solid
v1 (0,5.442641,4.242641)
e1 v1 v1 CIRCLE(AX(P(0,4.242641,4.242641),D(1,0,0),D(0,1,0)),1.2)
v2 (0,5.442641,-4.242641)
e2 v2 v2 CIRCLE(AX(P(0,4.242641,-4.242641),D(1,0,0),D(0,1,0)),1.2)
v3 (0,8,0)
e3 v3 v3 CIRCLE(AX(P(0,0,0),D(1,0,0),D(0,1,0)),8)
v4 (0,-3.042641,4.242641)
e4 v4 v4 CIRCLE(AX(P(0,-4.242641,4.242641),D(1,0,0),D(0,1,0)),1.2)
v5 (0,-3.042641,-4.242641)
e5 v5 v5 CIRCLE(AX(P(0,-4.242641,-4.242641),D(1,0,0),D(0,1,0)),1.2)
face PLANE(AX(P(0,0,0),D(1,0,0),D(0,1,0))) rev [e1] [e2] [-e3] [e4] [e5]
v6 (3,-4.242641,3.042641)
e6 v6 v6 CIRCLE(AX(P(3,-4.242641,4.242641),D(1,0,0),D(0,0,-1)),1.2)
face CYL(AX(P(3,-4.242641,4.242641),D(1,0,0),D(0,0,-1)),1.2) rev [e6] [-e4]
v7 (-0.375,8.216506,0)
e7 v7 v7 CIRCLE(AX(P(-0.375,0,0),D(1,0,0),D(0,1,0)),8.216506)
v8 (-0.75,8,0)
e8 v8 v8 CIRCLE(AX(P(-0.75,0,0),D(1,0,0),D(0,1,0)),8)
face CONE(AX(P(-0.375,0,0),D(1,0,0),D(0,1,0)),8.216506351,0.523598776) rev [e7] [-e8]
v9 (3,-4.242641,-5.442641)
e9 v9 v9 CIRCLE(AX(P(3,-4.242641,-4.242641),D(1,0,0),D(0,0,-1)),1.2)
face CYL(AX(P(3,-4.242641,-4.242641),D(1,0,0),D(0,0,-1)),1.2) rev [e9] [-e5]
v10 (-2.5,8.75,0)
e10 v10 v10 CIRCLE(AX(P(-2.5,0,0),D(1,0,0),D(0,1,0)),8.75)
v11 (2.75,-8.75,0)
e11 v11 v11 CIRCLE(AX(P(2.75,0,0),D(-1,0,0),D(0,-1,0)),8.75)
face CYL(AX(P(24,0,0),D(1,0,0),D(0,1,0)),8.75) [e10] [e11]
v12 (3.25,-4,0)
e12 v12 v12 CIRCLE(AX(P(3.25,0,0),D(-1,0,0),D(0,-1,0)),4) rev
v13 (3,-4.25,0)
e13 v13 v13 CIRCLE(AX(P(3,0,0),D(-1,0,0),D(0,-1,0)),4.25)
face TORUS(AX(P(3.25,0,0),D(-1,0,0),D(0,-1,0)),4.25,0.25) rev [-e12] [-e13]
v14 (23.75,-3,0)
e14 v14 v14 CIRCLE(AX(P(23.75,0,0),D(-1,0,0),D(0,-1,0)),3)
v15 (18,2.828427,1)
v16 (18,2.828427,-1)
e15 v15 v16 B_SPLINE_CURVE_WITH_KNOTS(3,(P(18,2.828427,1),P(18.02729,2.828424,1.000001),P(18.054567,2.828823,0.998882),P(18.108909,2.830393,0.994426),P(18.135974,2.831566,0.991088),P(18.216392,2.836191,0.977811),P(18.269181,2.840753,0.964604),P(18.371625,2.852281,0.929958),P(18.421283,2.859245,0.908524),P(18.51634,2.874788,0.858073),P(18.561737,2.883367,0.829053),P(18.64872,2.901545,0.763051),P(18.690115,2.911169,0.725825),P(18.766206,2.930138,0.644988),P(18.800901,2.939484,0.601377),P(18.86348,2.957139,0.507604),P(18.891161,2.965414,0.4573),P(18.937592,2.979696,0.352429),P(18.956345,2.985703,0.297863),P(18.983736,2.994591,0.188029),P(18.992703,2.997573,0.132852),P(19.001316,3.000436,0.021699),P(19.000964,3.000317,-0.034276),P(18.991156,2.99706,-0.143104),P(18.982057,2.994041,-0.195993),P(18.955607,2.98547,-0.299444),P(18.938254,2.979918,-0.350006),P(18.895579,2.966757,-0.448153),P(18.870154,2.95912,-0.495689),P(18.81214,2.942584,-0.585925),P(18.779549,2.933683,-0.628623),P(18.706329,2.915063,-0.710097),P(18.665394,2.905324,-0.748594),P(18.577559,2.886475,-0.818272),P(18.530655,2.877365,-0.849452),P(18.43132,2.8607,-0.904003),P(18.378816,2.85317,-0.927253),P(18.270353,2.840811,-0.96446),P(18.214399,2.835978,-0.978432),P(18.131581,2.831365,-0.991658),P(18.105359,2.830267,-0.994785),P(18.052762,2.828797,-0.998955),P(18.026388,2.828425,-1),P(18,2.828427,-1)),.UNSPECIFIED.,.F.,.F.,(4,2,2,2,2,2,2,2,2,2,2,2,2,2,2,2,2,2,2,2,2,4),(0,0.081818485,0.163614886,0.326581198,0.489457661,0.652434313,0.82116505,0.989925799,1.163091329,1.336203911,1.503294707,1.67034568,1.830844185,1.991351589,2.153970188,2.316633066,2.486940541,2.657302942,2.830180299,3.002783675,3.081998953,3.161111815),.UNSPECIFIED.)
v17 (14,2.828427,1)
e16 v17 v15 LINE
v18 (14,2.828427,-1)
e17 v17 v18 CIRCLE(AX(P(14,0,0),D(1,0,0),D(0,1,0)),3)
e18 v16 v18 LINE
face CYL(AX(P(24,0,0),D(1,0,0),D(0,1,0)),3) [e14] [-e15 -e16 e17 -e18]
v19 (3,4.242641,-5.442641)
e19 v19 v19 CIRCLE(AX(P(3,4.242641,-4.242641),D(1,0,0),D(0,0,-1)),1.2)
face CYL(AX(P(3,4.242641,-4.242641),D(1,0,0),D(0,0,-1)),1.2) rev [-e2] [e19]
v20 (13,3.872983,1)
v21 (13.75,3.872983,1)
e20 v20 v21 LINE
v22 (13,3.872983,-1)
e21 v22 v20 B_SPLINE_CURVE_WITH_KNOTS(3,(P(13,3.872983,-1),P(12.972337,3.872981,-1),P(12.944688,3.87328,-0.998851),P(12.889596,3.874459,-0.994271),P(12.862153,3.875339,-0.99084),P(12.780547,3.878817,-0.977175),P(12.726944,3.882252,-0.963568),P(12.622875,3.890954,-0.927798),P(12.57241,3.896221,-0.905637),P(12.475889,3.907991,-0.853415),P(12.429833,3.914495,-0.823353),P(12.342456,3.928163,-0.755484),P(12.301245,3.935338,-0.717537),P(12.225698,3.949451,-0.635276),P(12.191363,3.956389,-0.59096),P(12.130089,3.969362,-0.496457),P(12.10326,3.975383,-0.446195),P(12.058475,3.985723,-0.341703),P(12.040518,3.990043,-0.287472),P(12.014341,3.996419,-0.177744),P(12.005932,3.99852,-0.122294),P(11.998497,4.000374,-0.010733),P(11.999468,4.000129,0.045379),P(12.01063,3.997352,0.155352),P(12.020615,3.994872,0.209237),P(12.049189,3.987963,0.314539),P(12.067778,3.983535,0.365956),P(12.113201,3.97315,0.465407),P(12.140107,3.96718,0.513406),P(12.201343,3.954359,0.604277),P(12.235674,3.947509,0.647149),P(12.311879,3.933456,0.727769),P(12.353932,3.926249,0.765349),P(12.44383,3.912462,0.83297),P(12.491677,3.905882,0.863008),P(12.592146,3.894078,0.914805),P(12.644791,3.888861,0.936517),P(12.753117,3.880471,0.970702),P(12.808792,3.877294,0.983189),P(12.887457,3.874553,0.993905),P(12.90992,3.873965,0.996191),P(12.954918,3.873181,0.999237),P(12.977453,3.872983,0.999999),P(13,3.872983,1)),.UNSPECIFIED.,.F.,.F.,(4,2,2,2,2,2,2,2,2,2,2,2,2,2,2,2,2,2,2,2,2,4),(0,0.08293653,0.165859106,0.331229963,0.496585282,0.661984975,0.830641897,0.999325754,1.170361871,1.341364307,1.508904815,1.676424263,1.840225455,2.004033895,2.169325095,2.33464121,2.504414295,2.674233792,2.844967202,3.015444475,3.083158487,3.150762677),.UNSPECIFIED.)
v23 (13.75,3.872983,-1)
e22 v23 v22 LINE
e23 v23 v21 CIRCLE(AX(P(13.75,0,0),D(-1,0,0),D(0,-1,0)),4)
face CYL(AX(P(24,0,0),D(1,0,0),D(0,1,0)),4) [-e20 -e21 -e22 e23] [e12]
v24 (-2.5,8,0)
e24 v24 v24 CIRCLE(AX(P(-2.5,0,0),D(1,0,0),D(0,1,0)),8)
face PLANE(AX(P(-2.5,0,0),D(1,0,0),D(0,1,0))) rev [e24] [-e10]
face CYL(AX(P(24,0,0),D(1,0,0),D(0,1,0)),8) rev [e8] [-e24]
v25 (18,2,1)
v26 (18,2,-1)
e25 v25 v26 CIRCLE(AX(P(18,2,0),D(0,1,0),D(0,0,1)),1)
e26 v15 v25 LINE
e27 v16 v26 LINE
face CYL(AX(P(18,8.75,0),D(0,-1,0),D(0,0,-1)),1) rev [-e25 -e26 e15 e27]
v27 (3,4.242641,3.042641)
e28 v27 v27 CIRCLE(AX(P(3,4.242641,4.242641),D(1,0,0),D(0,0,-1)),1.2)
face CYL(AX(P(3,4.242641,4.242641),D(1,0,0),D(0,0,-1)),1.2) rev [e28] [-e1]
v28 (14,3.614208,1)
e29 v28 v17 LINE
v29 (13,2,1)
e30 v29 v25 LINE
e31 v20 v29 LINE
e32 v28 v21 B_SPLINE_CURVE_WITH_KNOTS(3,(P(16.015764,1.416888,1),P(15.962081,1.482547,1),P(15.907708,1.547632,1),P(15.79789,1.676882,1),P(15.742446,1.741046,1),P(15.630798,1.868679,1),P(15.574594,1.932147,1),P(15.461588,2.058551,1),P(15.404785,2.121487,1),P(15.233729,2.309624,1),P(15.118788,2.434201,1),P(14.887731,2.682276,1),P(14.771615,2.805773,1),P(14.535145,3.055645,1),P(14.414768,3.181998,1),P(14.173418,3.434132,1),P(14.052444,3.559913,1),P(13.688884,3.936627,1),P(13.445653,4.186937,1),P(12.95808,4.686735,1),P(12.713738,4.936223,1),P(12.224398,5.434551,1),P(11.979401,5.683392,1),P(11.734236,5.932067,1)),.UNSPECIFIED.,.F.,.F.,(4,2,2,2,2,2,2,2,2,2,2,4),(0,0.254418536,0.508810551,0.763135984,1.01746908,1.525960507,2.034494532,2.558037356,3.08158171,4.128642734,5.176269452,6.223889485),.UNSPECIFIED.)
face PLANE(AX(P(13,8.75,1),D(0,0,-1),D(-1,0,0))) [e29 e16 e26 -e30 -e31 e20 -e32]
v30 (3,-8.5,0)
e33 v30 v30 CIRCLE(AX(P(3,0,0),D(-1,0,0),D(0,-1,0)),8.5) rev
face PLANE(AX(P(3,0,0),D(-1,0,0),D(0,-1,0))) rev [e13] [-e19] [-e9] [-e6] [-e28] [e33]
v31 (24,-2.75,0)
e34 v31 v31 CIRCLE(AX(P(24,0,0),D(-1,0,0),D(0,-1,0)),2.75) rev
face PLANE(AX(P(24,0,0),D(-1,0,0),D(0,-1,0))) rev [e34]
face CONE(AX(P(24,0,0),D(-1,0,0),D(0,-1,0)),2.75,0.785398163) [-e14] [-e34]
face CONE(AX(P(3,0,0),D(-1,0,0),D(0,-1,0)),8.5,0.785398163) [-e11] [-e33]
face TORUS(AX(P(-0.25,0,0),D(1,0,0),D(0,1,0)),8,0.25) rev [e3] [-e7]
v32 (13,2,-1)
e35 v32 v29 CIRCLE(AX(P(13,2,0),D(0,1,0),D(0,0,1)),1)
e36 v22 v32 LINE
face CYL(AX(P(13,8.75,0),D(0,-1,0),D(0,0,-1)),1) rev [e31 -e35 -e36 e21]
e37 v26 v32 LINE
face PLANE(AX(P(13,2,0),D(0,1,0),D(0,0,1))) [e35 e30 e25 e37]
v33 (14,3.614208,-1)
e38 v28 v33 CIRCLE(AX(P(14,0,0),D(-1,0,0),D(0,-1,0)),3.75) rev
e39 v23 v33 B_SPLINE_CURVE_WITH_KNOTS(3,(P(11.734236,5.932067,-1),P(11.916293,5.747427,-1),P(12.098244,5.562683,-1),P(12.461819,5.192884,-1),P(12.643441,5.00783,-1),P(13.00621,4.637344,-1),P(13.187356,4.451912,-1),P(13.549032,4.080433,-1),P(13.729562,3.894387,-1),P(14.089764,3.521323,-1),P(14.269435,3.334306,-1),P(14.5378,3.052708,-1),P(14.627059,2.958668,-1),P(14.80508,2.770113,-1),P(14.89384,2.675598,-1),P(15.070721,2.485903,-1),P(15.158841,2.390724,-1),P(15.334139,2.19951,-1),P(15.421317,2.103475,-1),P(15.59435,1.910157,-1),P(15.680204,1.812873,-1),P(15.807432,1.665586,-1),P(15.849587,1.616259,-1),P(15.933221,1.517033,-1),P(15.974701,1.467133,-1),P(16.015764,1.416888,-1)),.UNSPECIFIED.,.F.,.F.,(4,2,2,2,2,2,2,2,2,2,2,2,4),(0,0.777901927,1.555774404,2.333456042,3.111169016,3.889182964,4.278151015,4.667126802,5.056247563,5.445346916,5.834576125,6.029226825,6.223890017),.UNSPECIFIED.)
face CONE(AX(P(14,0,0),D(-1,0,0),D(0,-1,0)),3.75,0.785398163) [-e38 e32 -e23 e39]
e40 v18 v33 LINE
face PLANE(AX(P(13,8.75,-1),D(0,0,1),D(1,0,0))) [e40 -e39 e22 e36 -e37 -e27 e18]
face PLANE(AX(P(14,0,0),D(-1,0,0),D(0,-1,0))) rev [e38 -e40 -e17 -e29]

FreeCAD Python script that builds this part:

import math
import FreeCAD as App
import Part
import Sketcher
from FreeCAD import Vector
Q = App.Units.Quantity


def edges_at(feature, points):
    """Names of the edges that pass closest to the given points."""
    edges = feature.Shape.Edges
    near = lambda p: min(range(len(edges)), key=lambda i: edges[i].distToShape(Part.Vertex(*p))[0])
    return sorted({f"Edge{near(p) + 1}" for p in points})

doc = App.newDocument("Part")
body = doc.addObject("PartDesign::Body", "Body")

sketch1 = body.newObject("Sketcher::SketchObject", "Sketch")
sketch1.AttachmentSupport = (doc.getObject("XY_Plane"), [""])
sketch1.MapMode = "FlatFace"
sketch1.addGeometry(Part.LineSegment(Vector(0, 8, 0), Vector(0, 0, 0)), False)
sketch1.addGeometry(Part.LineSegment(Vector(0, 0, 0), Vector(24, 0, 0)), False)
sketch1.addGeometry(Part.LineSegment(Vector(24, 0, 0), Vector(24, 3, 0)), False)
sketch1.addGeometry(Part.LineSegment(Vector(24, 3, 0), Vector(14, 3, 0)), False)
sketch1.addGeometry(Part.LineSegment(Vector(14, 3, 0), Vector(14, 4, 0)), False)
sketch1.addGeometry(Part.LineSegment(Vector(14, 4, 0), Vector(3, 4, 0)), False)
sketch1.addGeometry(Part.LineSegment(Vector(3, 4, 0), Vector(3, 8.75, 0)), False)
sketch1.addGeometry(Part.LineSegment(Vector(3, 8.75, 0), Vector(-2.5, 8.75, 0)), False)
sketch1.addGeometry(Part.LineSegment(Vector(-2.5, 8.75, 0), Vector(-2.5, 8, 0)), False)
sketch1.addGeometry(Part.LineSegment(Vector(-2.5, 8, 0), Vector(-0.75, 8, 0)), False)
sketch1.addGeometry(Part.LineSegment(Vector(-0.75, 8, 0), Vector(-0.38, 8.22, 0)), False)
sketch1.addGeometry(Part.ArcOfCircle(Part.Circle(Vector(-0.25, 8, 0), Vector(0, 0, 1), 0.25), math.radians(0), math.radians(120)), False)
sketch1.addConstraint(Sketcher.Constraint("Coincident", 0, 2, 1, 1))
sketch1.addConstraint(Sketcher.Constraint("Coincident", 1, 2, 2, 1))
sketch1.addConstraint(Sketcher.Constraint("Coincident", 2, 2, 3, 1))
sketch1.addConstraint(Sketcher.Constraint("Coincident", 3, 2, 4, 1))
sketch1.addConstraint(Sketcher.Constraint("Coincident", 4, 2, 5, 1))
sketch1.addConstraint(Sketcher.Constraint("Coincident", 5, 2, 6, 1))
sketch1.addConstraint(Sketcher.Constraint("Coincident", 6, 2, 7, 1))
sketch1.addConstraint(Sketcher.Constraint("Coincident", 7, 2, 8, 1))
sketch1.addConstraint(Sketcher.Constraint("Coincident", 8, 2, 9, 1))
sketch1.addConstraint(Sketcher.Constraint("Coincident", 9, 2, 10, 1))
sketch1.addConstraint(Sketcher.Constraint("Tangent", 10, 2, 11, 2))
sketch1.addConstraint(Sketcher.Constraint("Tangent", 11, 1, 0, 1))
sketch1.addConstraint(Sketcher.Constraint("Vertical", 0))
sketch1.addConstraint(Sketcher.Constraint("Horizontal", 1))
sketch1.addConstraint(Sketcher.Constraint("Vertical", 2))
sketch1.addConstraint(Sketcher.Constraint("Horizontal", 3))
sketch1.addConstraint(Sketcher.Constraint("Vertical", 4))
sketch1.addConstraint(Sketcher.Constraint("Horizontal", 5))
sketch1.addConstraint(Sketcher.Constraint("Vertical", 6))
sketch1.addConstraint(Sketcher.Constraint("Horizontal", 7))
sketch1.addConstraint(Sketcher.Constraint("Vertical", 8))
sketch1.addConstraint(Sketcher.Constraint("Horizontal", 9))
sketch1.addConstraint(Sketcher.Constraint("Coincident", 0, 2, -1, 1))
sketch1.addConstraint(Sketcher.Constraint("Horizontal", 11, 3, 8, 2))
sketch1.addConstraint(Sketcher.Constraint("DistanceX", 1, 1, 1, 2, 24.0))
sketch1.addConstraint(Sketcher.Constraint("DistanceX", 3, 2, 3, 1, 10.0))
sketch1.addConstraint(Sketcher.Constraint("DistanceX", 5, 2, 5, 1, 11.0))
sketch1.addConstraint(Sketcher.Constraint("DistanceY", 0, 2, 0, 1, 8.0))
sketch1.addConstraint(Sketcher.Constraint("DistanceY", 2, 1, 2, 2, 3.0))
sketch1.addConstraint(Sketcher.Constraint("DistanceY", 4, 1, 4, 2, 1.0))
sketch1.addConstraint(Sketcher.Constraint("Angle", 10, Q("30 deg")))
sketch1.addConstraint(Sketcher.Constraint("Radius", 11, 0.25))
sketch1.addConstraint(Sketcher.Constraint("DistanceX", 7, 2, 7, 1, 5.5))
sketch1.addConstraint(Sketcher.Constraint("DistanceY", 6, 1, 6, 2, 4.75))
revolution = body.newObject("PartDesign::Revolution", "Revolution")
revolution.Profile = sketch1
revolution.ReferenceAxis = (sketch1, ["H_Axis"])
revolution.Angle = 360

sketch2 = body.newObject("Sketcher::SketchObject", "Sketch001")
sketch2.AttachmentSupport = (doc.getObject("YZ_Plane"), [""])
sketch2.MapMode = "FlatFace"
sketch2.AttachmentOffset = App.Placement(Vector(0, 0, 3), App.Rotation())
sketch2.addGeometry(Part.Circle(Vector(4.2, -4.2, 0), Vector(0, 0, 1), 1.2), False)
sketch2.addGeometry(Part.Circle(Vector(4.2, 4.2, 0), Vector(0, 0, 1), 1.2), False)
sketch2.addGeometry(Part.Circle(Vector(-4.2, -4.2, 0), Vector(0, 0, 1), 1.2), False)
sketch2.addGeometry(Part.Circle(Vector(-4.2, 4.2, 0), Vector(0, 0, 1), 1.2), False)
sketch2.addConstraint(Sketcher.Constraint("Equal", 0, 1))
sketch2.addConstraint(Sketcher.Constraint("Equal", 1, 2))
sketch2.addConstraint(Sketcher.Constraint("Equal", 2, 3))
sketch2.addConstraint(Sketcher.Constraint("Symmetric", 1, 3, 2, 3, -1, 1))
sketch2.addConstraint(Sketcher.Constraint("Symmetric", 0, 3, 3, 3, -1, 1))
sketch2.addConstraint(Sketcher.Constraint("Symmetric", 0, 3, 2, 3, -2))
sketch2.addConstraint(Sketcher.Constraint("Diameter", 0, 2.4))
sketch2.addConstraint(Sketcher.Constraint("DistanceX", -1, 1, 0, 3, 4.242641))
sketch2.addConstraint(Sketcher.Constraint("DistanceY", 0, 3, -1, 1, 4.242641))
doc.recompute()
hole = body.newObject("PartDesign::Hole", "Hole")
hole.Profile = sketch2
hole.ThreadType = "None"
hole.Diameter = 2.4
hole.DepthType = "ThroughAll"
doc.recompute()

chamfer = body.newObject("PartDesign::Chamfer", "Chamfer")
chamfer.Base = (hole, edges_at(hole, [(3, -8.75, 0), (14, -4, 0), (24, -3, 0)]))
chamfer.Size = 0.25

sketch3 = body.newObject("Sketcher::SketchObject", "Sketch002")
sketch3.AttachmentSupport = (doc.getObject("XZ_Plane"), [""])
sketch3.MapMode = "FlatFace"
sketch3.AttachmentOffset = App.Placement(Vector(0, 0, -2), App.Rotation())
sketch3.addGeometry(Part.LineSegment(Vector(18, -1, 0), Vector(13, -1, 0)), False)
sketch3.addGeometry(Part.ArcOfCircle(Part.Circle(Vector(13, 0, 0), Vector(0, 0, 1), 1), math.radians(90), math.radians(270)), False)
sketch3.addGeometry(Part.LineSegment(Vector(13, 1, 0), Vector(18, 1, 0)), False)
sketch3.addGeometry(Part.ArcOfCircle(Part.Circle(Vector(18, 0, 0), Vector(0, 0, 1), 1), math.radians(-90), math.radians(90)), False)
sketch3.addConstraint(Sketcher.Constraint("Tangent", 0, 2, 1, 2))
sketch3.addConstraint(Sketcher.Constraint("Tangent", 1, 1, 2, 1))
sketch3.addConstraint(Sketcher.Constraint("Tangent", 2, 2, 3, 2))
sketch3.addConstraint(Sketcher.Constraint("Tangent", 3, 1, 0, 1))
sketch3.addConstraint(Sketcher.Constraint("Horizontal", 0))
sketch3.addConstraint(Sketcher.Constraint("Horizontal", 2))
sketch3.addConstraint(Sketcher.Constraint("PointOnObject", 1, 3, -1))
sketch3.addConstraint(Sketcher.Constraint("Radius", 1, 1.0))
sketch3.addConstraint(Sketcher.Constraint("DistanceX", 0, 2, 0, 1, 5.0))
sketch3.addConstraint(Sketcher.Constraint("DistanceX", -1, 1, 1, 3, 13.0))
pocket1 = body.newObject("PartDesign::Pocket", "Pocket")
pocket1.Profile = sketch3
pocket1.Type = "ThroughAll"
doc.recompute()

fillet = body.newObject("PartDesign::Fillet", "Fillet")
fillet.Base = (pocket1, edges_at(pocket1, [(3, -4, 0)]))
fillet.Radius = 0.25

doc.recompute()
